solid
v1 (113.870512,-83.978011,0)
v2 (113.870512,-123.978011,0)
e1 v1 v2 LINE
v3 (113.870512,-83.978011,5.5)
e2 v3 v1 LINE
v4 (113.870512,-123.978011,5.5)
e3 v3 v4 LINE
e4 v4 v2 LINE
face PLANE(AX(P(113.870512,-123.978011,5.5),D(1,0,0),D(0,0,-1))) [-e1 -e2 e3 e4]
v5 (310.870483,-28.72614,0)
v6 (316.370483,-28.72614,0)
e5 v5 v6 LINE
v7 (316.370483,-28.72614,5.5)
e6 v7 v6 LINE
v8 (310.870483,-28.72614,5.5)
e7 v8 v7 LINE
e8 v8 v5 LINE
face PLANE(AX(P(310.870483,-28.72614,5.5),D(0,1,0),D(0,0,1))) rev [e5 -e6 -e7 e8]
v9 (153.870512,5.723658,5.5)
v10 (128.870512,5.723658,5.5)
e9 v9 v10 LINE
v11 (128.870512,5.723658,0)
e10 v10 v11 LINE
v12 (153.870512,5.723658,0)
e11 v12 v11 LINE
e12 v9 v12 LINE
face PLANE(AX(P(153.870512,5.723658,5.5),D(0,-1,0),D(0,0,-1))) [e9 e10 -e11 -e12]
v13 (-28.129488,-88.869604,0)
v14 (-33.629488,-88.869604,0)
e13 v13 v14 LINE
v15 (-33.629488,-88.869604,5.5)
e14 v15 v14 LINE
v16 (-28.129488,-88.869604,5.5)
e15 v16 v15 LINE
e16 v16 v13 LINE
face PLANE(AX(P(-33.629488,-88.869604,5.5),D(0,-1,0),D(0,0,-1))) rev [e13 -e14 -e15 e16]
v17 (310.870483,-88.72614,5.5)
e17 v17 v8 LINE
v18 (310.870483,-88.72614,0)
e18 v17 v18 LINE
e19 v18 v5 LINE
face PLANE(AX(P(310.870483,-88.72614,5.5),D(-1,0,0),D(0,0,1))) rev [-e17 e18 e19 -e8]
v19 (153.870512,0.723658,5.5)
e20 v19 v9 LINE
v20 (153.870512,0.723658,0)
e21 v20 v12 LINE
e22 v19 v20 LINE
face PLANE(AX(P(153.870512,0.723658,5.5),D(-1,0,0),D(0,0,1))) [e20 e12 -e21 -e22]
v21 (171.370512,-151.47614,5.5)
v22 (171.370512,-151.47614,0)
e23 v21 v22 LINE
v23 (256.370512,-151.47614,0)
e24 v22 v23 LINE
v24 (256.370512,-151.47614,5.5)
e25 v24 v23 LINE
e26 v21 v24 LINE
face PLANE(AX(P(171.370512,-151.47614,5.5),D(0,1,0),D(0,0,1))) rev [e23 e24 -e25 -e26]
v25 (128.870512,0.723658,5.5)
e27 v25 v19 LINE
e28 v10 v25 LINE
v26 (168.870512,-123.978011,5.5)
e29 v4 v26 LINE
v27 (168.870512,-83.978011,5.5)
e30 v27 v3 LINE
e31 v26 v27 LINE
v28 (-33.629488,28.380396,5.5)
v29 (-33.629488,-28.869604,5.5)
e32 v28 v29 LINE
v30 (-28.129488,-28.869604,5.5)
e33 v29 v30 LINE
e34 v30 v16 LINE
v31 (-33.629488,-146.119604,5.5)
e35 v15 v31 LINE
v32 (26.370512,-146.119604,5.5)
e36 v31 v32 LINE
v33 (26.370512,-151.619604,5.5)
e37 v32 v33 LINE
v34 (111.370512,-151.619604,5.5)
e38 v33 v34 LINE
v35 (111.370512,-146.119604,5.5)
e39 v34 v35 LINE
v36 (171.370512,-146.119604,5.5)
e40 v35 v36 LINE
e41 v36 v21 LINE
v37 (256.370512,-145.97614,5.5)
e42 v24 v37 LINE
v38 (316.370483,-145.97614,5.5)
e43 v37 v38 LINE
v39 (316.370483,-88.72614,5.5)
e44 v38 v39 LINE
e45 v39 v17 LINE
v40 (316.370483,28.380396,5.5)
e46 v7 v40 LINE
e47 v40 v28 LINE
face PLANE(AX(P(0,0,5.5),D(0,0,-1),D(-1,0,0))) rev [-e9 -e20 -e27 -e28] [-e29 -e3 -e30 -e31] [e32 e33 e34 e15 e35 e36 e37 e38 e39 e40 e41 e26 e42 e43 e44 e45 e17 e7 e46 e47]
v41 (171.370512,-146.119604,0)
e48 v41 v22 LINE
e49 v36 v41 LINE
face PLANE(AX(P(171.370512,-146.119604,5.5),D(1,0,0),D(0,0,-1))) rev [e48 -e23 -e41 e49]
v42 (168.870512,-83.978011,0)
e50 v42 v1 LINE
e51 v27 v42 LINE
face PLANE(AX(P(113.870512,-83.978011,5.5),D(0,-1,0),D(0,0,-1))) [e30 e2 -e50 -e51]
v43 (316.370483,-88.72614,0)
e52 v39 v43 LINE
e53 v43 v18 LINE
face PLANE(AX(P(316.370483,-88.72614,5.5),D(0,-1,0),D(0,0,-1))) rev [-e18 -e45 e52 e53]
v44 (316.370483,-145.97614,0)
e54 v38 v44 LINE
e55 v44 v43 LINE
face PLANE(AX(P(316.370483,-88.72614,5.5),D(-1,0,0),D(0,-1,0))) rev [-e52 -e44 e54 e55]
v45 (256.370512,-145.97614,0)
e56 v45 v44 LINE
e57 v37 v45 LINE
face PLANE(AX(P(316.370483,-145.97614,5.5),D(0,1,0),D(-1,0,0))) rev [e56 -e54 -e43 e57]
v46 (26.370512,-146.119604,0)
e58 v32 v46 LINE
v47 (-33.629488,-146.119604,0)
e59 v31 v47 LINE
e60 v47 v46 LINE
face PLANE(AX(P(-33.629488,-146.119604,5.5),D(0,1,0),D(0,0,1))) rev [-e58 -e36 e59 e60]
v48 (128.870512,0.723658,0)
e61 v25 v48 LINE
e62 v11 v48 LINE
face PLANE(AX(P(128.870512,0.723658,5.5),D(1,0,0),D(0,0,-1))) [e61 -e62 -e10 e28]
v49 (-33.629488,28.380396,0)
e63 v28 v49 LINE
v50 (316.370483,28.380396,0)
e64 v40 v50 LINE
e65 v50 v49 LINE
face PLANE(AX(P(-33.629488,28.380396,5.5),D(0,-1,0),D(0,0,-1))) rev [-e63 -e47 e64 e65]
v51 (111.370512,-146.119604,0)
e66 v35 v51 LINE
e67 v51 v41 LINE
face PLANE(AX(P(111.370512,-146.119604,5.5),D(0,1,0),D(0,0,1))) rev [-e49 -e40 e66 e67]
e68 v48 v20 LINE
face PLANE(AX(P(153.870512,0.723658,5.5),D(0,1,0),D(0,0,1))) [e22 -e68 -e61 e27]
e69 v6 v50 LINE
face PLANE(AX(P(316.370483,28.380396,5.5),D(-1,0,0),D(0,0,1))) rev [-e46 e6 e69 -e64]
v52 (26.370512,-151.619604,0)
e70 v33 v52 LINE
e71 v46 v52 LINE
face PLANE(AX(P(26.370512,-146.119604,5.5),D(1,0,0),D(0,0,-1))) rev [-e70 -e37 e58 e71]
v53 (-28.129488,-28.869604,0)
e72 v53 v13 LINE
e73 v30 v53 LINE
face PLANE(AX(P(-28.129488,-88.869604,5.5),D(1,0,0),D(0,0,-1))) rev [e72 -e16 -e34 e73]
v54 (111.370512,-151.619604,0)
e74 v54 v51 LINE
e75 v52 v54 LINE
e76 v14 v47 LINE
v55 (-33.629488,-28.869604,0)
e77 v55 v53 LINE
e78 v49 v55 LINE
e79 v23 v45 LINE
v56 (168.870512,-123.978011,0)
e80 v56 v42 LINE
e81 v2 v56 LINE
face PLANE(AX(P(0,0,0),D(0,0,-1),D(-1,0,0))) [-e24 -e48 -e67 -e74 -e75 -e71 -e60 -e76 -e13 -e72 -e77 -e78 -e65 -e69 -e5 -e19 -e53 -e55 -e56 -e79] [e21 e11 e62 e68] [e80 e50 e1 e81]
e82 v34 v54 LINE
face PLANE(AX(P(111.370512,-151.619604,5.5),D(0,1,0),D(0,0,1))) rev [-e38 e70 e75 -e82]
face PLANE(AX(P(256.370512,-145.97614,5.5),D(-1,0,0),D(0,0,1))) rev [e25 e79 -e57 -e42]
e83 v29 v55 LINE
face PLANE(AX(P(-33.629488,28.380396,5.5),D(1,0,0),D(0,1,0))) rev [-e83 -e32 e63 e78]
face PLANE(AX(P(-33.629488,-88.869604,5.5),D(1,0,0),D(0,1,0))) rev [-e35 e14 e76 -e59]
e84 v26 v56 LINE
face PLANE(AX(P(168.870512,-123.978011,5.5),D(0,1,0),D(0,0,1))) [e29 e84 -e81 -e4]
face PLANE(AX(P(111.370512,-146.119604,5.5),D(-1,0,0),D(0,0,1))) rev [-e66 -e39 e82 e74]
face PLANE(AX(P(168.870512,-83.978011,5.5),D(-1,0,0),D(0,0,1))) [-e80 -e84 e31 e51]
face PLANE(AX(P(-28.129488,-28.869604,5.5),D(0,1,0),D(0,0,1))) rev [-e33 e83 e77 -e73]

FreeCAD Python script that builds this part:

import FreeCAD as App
import Part
import Sketcher
Q = App.Units.Quantity


def add_polygon(sketch, points):
    """Adds a closed chain of lines whose ends are joined by coincident constraints."""
    first, n = sketch.GeometryCount, len(points)
    for a, b in zip(points, points[1:] + points[:1]):
        sketch.addGeometry(Part.LineSegment(App.Vector(*a, 0), App.Vector(*b, 0)), False)
    for i in range(n):
        sketch.addConstraint(Sketcher.Constraint("Coincident", first + i, 2, first + (i + 1) % n, 1))

doc = App.newDocument("Part")
params = doc.addObject("Spreadsheet::Sheet", "Params")
for row, (alias, value) in enumerate([
    ("sketch1_width", "60 mm"),
    ("sketch1_width2", "85 mm"),
    ("sketch1_width3", "55 mm"),
    ("sketch1_width4", "25 mm"),
    ("sketch1_height", "40 mm"),
    ("pad1_length", "5.5 mm"),
], start=1):
    params.set(f"A{row}", alias)
    params.set(f"B{row}", "=" + value)
    params.setAlias(f"B{row}", alias)

body = doc.addObject("PartDesign::Body", "Body")

sketch1 = doc.addObject("Sketcher::SketchObject", "Sketch")
body.addObject(sketch1)
sketch1.AttachmentSupport = (doc.XY_Plane, [""])
sketch1.MapMode = "FlatFace"
add_polygon(sketch1, [(316.370483, 28.380396), (-33.629488, 28.380396), (-33.629488, -28.869604), (-28.129488, -28.869604), (-28.129488, -88.869604), (-33.629488, -88.869604), (-33.629488, -146.119604), (26.370512, -146.119604), (26.370512, -151.619604), (111.370512, -151.619604), (111.370512, -146.119604), (171.370512, -146.119604), (171.370512, -151.47614), (256.370512, -151.47614), (256.370512, -145.97614), (316.370483, -145.97614), (316.370483, -88.72614), (310.870483, -88.72614), (310.870483, -28.72614), (316.370483, -28.72614)])
add_polygon(sketch1, [(113.870512, -123.978011), (113.870512, -83.978011), (168.870512, -83.978011), (168.870512, -123.978011)])
add_polygon(sketch1, [(128.870512, 0.723658), (128.870512, 5.723658), (153.870512, 5.723658), (153.870512, 0.723658)])
sketch1.addConstraint(Sketcher.Constraint("Horizontal", 0))
sketch1.addConstraint(Sketcher.Constraint("Vertical", 1))
sketch1.addConstraint(Sketcher.Constraint("Horizontal", 2))
sketch1.addConstraint(Sketcher.Constraint("Vertical", 3))
sketch1.addConstraint(Sketcher.Constraint("Horizontal", 4))
sketch1.addConstraint(Sketcher.Constraint("Vertical", 5))
sketch1.addConstraint(Sketcher.Constraint("Horizontal", 6))
sketch1.addConstraint(Sketcher.Constraint("Vertical", 7))
sketch1.addConstraint(Sketcher.Constraint("Horizontal", 8))
sketch1.addConstraint(Sketcher.Constraint("Vertical", 9))
sketch1.addConstraint(Sketcher.Constraint("Horizontal", 10))
sketch1.addConstraint(Sketcher.Constraint("Vertical", 11))
sketch1.addConstraint(Sketcher.Constraint("Horizontal", 12))
sketch1.addConstraint(Sketcher.Constraint("Vertical", 13))
sketch1.addConstraint(Sketcher.Constraint("Horizontal", 14))
sketch1.addConstraint(Sketcher.Constraint("Vertical", 15))
sketch1.addConstraint(Sketcher.Constraint("Horizontal", 16))
sketch1.addConstraint(Sketcher.Constraint("Vertical", 17))
sketch1.addConstraint(Sketcher.Constraint("Horizontal", 18))
sketch1.addConstraint(Sketcher.Constraint("Vertical", 19))
sketch1.addConstraint(Sketcher.Constraint("Vertical", 20))
sketch1.addConstraint(Sketcher.Constraint("Horizontal", 21))
sketch1.addConstraint(Sketcher.Constraint("Vertical", 22))
sketch1.addConstraint(Sketcher.Constraint("Horizontal", 23))
sketch1.addConstraint(Sketcher.Constraint("Vertical", 24))
sketch1.addConstraint(Sketcher.Constraint("Horizontal", 25))
sketch1.addConstraint(Sketcher.Constraint("Vertical", 26))
sketch1.addConstraint(Sketcher.Constraint("Horizontal", 27))
sketch1.addConstraint(Sketcher.Constraint("Horizontal", 6, 2, 9, 2))
sketch1.addConstraint(Sketcher.Constraint("Vertical", 1, 2, 4, 2))
sketch1.addConstraint(Sketcher.Constraint("Vertical", 15, 2, 18, 2))
sketch1.addConstraint(Sketcher.Constraint("Equal", 6, 10))
sketch1.addConstraint(Sketcher.Constraint("Equal", 8, 12))
sketch1.addConstraint(Sketcher.Constraint("Equal", 4, 16))
sketch1.addConstraint(Sketcher.Constraint("Equal", 10, 3))
sketch1.addConstraint(Sketcher.Constraint("Equal", 1, 5))
sketch1.addConstraint(Sketcher.Constraint("Equal", 18, 7))
sketch1.addConstraint(Sketcher.Constraint("Equal", 9, 13))
sketch1.addConstraint(Sketcher.Constraint("Equal", 5, 15))
sketch1.addConstraint(Sketcher.Constraint("Equal", 3, 17))
sketch1.addConstraint(Sketcher.Constraint("DistanceX", 6, 1, 6, 2, Q("60 mm")))
sketch1.addConstraint(Sketcher.Constraint("DistanceX", 8, 1, 8, 2, Q("85 mm")))
sketch1.addConstraint(Sketcher.Constraint("DistanceX", 21, 1, 21, 2, Q("55 mm")))
sketch1.addConstraint(Sketcher.Constraint("DistanceX", 25, 1, 25, 2, Q("25 mm")))
sketch1.addConstraint(Sketcher.Constraint("DistanceY", 20, 1, 20, 2, Q("40 mm")))
sketch1.addConstraint(Sketcher.Constraint("DistanceY", 24, 1, 24, 2, Q("5 mm")))
sketch1.addConstraint(Sketcher.Constraint("DistanceX", 2, 1, 2, 2, Q("5.5 mm")))
sketch1.addConstraint(Sketcher.Constraint("DistanceX", 20, 2, 24, 2, Q("15 mm")))
sketch1.addConstraint(Sketcher.Constraint("DistanceY", 1, 2, 1, 1, Q("57.25 mm")))
sketch1.addConstraint(Sketcher.Constraint("DistanceX", 9, 2, 20, 2, Q("2.5 mm")))
sketch1.addConstraint(Sketcher.Constraint("DistanceX", 0, 2, 0, 1, Q("349.999971 mm")))
sketch1.addConstraint(Sketcher.Constraint("DistanceY", 11, 2, 11, 1, Q("5.356536 mm")))
sketch1.addConstraint(Sketcher.Constraint("DistanceY", 11, 2, -1, 1, Q("151.47614 mm")))
sketch1.addConstraint(Sketcher.Constraint("DistanceY", 20, 2, -1, 1, Q("83.978011 mm")))
sketch1.addConstraint(Sketcher.Constraint("DistanceY", -1, 1, 24, 2, Q("5.723658 mm")))
sketch1.addConstraint(Sketcher.Constraint("DistanceX", 0, 2, -1, 1, Q("33.629488 mm")))
sketch1.setExpression("Constraints[68]", "Params.sketch1_width")
sketch1.setExpression("Constraints[69]", "Params.sketch1_width2")
sketch1.setExpression("Constraints[70]", "Params.sketch1_width3")
sketch1.setExpression("Constraints[71]", "Params.sketch1_width4")
sketch1.setExpression("Constraints[72]", "Params.sketch1_height")
pad1 = doc.addObject("PartDesign::Pad", "Pad")
body.addObject(pad1)
pad1.Profile = sketch1
pad1.setExpression("Length", "Params.pad1_length")

doc.recompute()
